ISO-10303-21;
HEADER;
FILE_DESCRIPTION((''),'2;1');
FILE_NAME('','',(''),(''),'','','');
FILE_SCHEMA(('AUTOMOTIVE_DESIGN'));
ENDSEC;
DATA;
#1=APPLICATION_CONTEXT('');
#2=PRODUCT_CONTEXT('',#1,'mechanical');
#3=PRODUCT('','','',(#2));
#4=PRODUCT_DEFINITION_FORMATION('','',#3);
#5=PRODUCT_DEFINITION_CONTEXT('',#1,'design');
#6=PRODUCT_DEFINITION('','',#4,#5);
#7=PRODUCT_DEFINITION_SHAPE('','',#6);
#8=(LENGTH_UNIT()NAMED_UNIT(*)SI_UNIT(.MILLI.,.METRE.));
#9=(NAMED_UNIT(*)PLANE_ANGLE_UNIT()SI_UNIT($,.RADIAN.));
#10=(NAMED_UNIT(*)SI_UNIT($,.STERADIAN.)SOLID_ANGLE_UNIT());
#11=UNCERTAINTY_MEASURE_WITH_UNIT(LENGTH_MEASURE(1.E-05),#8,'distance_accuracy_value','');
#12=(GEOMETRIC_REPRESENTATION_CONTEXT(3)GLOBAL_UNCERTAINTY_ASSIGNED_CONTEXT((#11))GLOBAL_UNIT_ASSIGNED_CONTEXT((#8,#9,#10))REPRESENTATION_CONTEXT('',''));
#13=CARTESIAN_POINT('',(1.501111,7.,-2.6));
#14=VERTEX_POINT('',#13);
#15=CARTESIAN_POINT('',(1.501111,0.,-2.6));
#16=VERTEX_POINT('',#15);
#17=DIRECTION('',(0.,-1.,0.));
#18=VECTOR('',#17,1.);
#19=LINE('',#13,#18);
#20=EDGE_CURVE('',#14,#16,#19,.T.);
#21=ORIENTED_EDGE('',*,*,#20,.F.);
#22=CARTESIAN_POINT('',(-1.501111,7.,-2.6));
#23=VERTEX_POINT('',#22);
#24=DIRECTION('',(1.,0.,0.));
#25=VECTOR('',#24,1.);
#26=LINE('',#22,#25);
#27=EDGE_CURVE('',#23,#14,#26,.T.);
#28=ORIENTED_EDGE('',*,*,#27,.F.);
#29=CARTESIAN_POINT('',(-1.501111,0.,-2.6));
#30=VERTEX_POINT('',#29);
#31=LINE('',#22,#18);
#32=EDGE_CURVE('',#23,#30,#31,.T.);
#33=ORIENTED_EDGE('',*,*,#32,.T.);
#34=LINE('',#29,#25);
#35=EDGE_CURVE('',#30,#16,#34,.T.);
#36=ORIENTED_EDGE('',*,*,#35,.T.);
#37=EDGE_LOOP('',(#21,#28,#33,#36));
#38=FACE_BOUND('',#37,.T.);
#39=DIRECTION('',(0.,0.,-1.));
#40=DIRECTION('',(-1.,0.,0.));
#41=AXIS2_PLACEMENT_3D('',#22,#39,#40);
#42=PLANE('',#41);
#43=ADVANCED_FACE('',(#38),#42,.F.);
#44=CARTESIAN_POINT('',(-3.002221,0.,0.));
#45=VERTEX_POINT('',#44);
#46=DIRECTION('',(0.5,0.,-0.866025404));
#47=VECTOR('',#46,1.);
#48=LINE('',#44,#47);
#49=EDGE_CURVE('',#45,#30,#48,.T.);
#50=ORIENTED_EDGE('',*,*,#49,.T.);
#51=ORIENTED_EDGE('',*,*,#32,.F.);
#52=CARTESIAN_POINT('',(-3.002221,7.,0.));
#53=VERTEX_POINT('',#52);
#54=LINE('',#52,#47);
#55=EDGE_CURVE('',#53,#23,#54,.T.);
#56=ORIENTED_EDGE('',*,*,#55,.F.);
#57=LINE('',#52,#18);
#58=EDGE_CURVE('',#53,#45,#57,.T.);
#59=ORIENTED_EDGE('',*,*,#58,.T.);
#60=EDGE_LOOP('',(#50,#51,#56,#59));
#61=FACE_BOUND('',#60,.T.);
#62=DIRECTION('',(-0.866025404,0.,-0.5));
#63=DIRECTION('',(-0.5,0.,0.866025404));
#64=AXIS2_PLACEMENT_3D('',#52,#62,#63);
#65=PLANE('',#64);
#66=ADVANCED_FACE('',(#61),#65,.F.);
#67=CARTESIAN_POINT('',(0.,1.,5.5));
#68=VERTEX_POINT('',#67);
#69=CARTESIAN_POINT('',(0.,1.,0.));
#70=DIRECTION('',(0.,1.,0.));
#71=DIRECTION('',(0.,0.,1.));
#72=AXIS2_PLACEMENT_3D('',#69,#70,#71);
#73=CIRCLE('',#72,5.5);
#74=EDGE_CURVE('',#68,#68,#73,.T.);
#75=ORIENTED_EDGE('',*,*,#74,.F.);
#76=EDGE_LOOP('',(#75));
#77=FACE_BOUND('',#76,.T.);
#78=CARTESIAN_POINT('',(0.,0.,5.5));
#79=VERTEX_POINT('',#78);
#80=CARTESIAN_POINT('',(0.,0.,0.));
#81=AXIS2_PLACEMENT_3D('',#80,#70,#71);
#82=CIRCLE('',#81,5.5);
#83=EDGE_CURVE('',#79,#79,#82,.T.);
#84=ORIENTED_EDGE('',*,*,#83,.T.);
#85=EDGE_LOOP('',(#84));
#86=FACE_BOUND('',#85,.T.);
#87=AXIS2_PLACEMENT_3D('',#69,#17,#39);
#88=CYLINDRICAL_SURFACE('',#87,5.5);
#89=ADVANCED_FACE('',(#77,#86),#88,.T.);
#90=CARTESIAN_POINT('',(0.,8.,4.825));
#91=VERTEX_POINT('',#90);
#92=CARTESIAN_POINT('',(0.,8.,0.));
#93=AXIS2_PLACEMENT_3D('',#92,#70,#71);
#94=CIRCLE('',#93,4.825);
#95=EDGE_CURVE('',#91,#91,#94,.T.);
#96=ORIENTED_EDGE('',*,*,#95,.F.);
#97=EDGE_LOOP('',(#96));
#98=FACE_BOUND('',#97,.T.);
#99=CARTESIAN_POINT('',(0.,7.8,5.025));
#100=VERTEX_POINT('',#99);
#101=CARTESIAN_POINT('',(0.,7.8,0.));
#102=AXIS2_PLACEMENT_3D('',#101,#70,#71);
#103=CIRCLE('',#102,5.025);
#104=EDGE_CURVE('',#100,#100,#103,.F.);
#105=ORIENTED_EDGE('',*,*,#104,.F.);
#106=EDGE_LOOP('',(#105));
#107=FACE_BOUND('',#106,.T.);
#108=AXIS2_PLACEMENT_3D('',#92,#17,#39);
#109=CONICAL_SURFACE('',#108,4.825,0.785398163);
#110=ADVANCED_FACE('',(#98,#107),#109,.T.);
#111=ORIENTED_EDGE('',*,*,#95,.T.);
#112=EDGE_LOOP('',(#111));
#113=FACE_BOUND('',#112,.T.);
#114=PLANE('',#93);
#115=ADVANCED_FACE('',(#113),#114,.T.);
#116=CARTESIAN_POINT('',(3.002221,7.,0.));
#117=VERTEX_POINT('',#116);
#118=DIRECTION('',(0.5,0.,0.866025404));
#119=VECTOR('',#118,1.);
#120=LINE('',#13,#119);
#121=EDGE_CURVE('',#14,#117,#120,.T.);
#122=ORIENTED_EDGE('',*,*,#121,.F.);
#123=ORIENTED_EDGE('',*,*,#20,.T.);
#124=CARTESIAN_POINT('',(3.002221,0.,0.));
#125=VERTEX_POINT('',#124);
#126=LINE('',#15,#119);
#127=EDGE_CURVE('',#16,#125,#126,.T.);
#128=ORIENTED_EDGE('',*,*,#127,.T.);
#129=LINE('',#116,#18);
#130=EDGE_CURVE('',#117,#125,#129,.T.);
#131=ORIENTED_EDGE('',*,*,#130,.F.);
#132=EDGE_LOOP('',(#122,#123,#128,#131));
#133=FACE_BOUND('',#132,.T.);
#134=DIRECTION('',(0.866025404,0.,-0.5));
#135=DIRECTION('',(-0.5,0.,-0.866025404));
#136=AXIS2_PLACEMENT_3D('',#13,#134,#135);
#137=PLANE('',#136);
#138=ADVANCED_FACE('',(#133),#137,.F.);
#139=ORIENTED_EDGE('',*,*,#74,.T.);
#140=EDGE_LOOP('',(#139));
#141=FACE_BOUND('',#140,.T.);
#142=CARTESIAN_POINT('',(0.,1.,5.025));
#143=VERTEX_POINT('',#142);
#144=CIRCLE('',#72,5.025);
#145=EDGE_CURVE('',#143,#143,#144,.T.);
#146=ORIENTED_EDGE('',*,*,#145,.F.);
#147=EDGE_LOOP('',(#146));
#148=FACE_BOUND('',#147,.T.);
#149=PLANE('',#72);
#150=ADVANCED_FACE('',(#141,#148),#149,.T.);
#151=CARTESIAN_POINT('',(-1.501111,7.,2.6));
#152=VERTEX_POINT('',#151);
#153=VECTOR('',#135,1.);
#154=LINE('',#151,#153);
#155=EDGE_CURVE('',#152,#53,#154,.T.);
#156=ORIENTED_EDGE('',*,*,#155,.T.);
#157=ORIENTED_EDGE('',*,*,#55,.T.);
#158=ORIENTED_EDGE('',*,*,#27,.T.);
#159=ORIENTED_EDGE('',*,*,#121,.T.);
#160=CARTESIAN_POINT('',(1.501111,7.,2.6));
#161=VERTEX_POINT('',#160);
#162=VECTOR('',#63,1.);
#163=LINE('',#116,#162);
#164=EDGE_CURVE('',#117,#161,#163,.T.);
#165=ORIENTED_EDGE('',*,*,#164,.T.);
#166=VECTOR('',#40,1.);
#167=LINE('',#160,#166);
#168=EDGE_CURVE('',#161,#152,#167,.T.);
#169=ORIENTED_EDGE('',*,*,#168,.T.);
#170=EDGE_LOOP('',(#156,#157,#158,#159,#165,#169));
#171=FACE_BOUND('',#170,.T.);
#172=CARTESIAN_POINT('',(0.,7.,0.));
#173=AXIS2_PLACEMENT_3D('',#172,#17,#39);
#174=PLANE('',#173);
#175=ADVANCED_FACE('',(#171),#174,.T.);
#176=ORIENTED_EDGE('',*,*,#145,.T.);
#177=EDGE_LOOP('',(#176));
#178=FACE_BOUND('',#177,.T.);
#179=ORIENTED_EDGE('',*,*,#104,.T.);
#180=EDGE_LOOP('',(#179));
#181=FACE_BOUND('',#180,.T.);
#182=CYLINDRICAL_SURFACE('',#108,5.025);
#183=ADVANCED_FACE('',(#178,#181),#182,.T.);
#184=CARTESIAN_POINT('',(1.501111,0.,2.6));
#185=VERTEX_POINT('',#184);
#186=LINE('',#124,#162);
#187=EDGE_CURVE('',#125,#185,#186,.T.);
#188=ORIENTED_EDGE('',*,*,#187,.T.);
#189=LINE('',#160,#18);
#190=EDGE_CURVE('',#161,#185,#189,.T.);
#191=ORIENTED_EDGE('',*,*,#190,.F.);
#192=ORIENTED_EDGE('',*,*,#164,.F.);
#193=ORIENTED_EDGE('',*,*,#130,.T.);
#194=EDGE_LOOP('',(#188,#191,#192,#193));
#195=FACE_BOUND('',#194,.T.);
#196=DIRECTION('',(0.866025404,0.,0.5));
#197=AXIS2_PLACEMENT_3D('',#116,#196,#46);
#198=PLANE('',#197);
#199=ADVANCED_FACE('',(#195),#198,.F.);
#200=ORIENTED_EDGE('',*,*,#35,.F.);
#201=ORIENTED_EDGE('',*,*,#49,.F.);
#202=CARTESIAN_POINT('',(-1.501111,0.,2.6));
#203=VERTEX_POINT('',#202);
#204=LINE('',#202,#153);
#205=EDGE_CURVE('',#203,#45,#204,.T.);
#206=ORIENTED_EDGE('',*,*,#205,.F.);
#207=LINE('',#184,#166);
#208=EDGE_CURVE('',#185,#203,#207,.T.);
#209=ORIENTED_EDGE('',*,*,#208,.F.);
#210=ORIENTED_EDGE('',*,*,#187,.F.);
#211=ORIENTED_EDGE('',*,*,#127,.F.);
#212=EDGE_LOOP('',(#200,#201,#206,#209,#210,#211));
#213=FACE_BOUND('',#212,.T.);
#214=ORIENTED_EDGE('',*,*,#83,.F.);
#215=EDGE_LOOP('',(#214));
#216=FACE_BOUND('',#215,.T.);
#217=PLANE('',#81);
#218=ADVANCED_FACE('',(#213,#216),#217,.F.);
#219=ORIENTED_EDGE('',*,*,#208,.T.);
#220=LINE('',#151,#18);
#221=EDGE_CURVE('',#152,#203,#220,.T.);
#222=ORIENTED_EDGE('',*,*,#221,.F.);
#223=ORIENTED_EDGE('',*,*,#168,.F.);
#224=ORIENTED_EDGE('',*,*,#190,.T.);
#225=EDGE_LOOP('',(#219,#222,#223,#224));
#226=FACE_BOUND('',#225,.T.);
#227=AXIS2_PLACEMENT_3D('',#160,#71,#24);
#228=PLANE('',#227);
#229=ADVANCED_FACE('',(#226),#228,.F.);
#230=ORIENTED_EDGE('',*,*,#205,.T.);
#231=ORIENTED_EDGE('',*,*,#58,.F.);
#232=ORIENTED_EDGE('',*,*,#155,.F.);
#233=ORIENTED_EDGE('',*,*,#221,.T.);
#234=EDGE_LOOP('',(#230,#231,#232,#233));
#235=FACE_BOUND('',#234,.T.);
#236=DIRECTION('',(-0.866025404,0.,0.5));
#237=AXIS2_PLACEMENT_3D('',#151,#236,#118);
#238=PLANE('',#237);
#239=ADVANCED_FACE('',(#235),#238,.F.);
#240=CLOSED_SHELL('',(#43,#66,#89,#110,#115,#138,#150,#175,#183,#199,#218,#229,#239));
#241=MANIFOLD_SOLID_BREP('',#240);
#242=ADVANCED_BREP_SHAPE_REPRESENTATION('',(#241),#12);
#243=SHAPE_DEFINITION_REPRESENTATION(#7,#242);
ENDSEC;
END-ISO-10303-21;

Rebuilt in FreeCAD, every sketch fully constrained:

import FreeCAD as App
import Part
import Sketcher
Q = App.Units.Quantity


def edges_at(feature, points):
    """Names of the edges that pass closest to the given points."""
    edges = feature.Shape.Edges
    near = lambda p: min(range(len(edges)), key=lambda i: edges[i].distToShape(Part.Vertex(*p))[0])
    return sorted({f"Edge{near(p) + 1}" for p in points})

doc = App.newDocument("Part")
body = doc.addObject("PartDesign::Body", "Body")

sketch1 = body.newObject("Sketcher::SketchObject", "Sketch")
sketch1.AttachmentSupport = (doc.getObject("XZ_Plane"), [""])
sketch1.MapMode = "FlatFace"
sketch1.addGeometry(Part.Circle(App.Vector(0, 0, 0), App.Vector(0, 0, 1), 5.5), False)
sketch1.addConstraint(Sketcher.Constraint("Coincident", 0, 3, -1, 1))
sketch1.addConstraint(Sketcher.Constraint("Diameter", 0, 11.0))
pad1 = body.newObject("PartDesign::Pad", "Pad")
pad1.Profile = sketch1
pad1.Length = 1
pad1.Reversed = True

sketch2 = body.newObject("Sketcher::SketchObject", "Sketch001")
sketch2.AttachmentSupport = (doc.getObject("XZ_Plane"), [""])
sketch2.MapMode = "FlatFace"
sketch2.AttachmentOffset = App.Placement(App.Vector(0, 0, -1), App.Rotation())
sketch2.addGeometry(Part.Circle(App.Vector(0, 0, 0), App.Vector(0, 0, 1), 5.025), False)
sketch2.addConstraint(Sketcher.Constraint("Coincident", 0, 3, -1, 1))
sketch2.addConstraint(Sketcher.Constraint("Diameter", 0, 10.05))
pad2 = body.newObject("PartDesign::Pad", "Pad001")
pad2.Profile = sketch2
pad2.Length = 7
pad2.Reversed = True

sketch3 = body.newObject("Sketcher::SketchObject", "Sketch002")
sketch3.AttachmentSupport = (doc.getObject("XZ_Plane"), [""])
sketch3.MapMode = "FlatFace"
sketch3.addGeometry(Part.LineSegment(App.Vector(3.002221, 0, 0), App.Vector(1.501111, 2.6, 0)), False)
sketch3.addGeometry(Part.LineSegment(App.Vector(1.501111, 2.6, 0), App.Vector(-1.501111, 2.6, 0)), False)
sketch3.addGeometry(Part.LineSegment(App.Vector(-1.501111, 2.6, 0), App.Vector(-3.002221, 0, 0)), False)
sketch3.addGeometry(Part.LineSegment(App.Vector(-3.002221, 0, 0), App.Vector(-1.501111, -2.6, 0)), False)
sketch3.addGeometry(Part.LineSegment(App.Vector(-1.501111, -2.6, 0), App.Vector(1.501111, -2.6, 0)), False)
sketch3.addGeometry(Part.LineSegment(App.Vector(1.501111, -2.6, 0), App.Vector(3.002221, 0, 0)), False)
sketch3.addConstraint(Sketcher.Constraint("Coincident", 0, 2, 1, 1))
sketch3.addConstraint(Sketcher.Constraint("Coincident", 1, 2, 2, 1))
sketch3.addConstraint(Sketcher.Constraint("Coincident", 2, 2, 3, 1))
sketch3.addConstraint(Sketcher.Constraint("Coincident", 3, 2, 4, 1))
sketch3.addConstraint(Sketcher.Constraint("Coincident", 4, 2, 5, 1))
sketch3.addConstraint(Sketcher.Constraint("Coincident", 5, 2, 0, 1))
sketch3.addConstraint(Sketcher.Constraint("Horizontal", 1))
sketch3.addConstraint(Sketcher.Constraint("Horizontal", 4))
sketch3.addConstraint(Sketcher.Constraint("Symmetric", 0, 2, 3, 2, -1, 1))
sketch3.addConstraint(Sketcher.Constraint("Symmetric", 2, 2, 5, 2, -1, 1))
sketch3.addConstraint(Sketcher.Constraint("PointOnObject", 2, 2, -1))
sketch3.addConstraint(Sketcher.Constraint("Parallel", 2, 5))
sketch3.addConstraint(Sketcher.Constraint("Vertical", 1, 2, 3, 2))
sketch3.addConstraint(Sketcher.Constraint("Angle", 0, Q("120 deg")))
sketch3.addConstraint(Sketcher.Constraint("DistanceY", -1, 1, 0, 2, 2.6))
sketch3.addConstraint(Sketcher.Constraint("DistanceX", 1, 2, 1, 1, 3.002221))
pocket1 = body.newObject("PartDesign::Pocket", "Pocket")
pocket1.Profile = sketch3
pocket1.Length = 7
doc.recompute()

chamfer = body.newObject("PartDesign::Chamfer", "Chamfer")
chamfer.Base = (pocket1, edges_at(pocket1, [(0, 8, -5.025)]))
chamfer.Size = 0.2

doc.recompute()
